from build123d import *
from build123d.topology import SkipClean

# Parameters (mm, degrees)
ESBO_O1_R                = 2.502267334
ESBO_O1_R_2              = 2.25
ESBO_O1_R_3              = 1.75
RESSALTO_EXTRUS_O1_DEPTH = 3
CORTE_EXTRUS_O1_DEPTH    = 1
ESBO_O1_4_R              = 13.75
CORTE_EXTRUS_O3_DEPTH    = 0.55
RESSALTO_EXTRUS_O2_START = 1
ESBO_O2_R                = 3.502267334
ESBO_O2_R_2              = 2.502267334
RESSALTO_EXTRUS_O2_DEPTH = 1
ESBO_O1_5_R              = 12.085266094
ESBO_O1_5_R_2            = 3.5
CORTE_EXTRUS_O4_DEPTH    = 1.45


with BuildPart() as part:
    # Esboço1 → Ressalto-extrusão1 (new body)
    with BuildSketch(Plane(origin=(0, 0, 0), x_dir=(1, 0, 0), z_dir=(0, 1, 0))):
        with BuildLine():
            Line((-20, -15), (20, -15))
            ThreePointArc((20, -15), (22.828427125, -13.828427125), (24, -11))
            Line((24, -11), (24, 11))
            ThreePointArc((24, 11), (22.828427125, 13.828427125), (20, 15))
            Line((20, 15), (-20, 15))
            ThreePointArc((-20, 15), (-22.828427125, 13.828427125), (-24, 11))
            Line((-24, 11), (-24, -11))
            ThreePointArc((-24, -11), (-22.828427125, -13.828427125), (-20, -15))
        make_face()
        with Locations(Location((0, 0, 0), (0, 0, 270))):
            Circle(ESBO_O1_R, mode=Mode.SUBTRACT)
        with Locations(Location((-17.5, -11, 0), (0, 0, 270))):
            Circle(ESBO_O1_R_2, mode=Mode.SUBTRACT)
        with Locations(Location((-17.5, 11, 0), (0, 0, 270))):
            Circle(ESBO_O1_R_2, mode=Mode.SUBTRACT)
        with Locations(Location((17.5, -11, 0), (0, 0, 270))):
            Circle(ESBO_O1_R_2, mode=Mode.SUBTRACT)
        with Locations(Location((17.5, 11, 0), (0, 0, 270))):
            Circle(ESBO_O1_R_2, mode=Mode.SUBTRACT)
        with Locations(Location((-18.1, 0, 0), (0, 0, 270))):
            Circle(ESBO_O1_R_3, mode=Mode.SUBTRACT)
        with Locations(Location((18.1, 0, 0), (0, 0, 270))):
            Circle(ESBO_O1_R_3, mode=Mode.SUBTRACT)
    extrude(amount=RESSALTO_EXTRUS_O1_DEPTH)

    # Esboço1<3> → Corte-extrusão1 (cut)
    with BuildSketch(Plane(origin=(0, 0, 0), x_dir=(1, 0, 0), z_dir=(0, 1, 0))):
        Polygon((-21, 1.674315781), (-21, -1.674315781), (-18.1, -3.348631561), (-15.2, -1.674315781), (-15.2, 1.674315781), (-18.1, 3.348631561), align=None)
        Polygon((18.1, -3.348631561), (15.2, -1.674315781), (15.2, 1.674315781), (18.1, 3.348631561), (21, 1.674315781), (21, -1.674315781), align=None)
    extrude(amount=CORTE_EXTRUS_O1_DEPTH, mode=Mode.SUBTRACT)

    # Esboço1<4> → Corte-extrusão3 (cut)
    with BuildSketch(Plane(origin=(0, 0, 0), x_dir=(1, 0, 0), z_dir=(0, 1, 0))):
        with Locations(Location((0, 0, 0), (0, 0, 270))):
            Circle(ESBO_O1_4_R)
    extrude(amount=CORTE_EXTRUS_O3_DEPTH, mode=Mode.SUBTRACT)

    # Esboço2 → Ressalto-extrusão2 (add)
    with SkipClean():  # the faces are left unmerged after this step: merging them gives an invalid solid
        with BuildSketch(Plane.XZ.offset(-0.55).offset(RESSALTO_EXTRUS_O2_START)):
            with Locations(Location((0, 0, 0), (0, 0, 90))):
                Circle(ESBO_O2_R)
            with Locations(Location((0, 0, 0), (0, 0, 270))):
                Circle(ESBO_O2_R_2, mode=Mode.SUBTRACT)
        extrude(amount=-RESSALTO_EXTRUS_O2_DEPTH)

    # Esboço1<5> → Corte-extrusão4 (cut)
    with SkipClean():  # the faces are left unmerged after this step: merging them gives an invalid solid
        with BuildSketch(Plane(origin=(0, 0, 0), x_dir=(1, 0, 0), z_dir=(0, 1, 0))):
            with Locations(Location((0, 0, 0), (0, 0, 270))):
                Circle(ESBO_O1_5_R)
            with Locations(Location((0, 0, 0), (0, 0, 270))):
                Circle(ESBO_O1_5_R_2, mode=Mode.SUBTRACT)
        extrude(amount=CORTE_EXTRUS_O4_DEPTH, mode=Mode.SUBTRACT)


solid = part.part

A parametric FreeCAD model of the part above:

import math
import FreeCAD as App
import Part
import Sketcher
from FreeCAD import Vector
Q = App.Units.Quantity

doc = App.newDocument("Part")
body = doc.addObject("PartDesign::Body", "Body")

# Sketch on XZ plane
sketch1 = body.newObject("Sketcher::SketchObject", "Sketch")
sketch1.AttachmentSupport = (doc.getObject("XZ_Plane"), [""])
sketch1.MapMode = "FlatFace"
sketch1.addGeometry([
    Part.LineSegment(Vector(-20, 15, 0), Vector(20, 15, 0)),  # 0
    Part.ArcOfCircle(Part.Circle(Vector(20, 11, 0), Vector(0, 0, 1), 4), math.radians(0), math.radians(90)),  # 1
    Part.LineSegment(Vector(24, 11, 0), Vector(24, -11, 0)),  # 2
    Part.ArcOfCircle(Part.Circle(Vector(20, -11, 0), Vector(0, 0, 1), 4), math.radians(-90), math.radians(0)),  # 3
    Part.LineSegment(Vector(20, -15, 0), Vector(-20, -15, 0)),  # 4
    Part.ArcOfCircle(Part.Circle(Vector(-20, -11, 0), Vector(0, 0, 1), 4), math.radians(180), math.radians(270)),  # 5
    Part.LineSegment(Vector(-24, -11, 0), Vector(-24, 11, 0)),  # 6
    Part.ArcOfCircle(Part.Circle(Vector(-20, 11, 0), Vector(0, 0, 1), 4), math.radians(90), math.radians(180)),  # 7
    Part.Circle(Vector(-17.5, 11, 0), Vector(0, 0, 1), 2.2),  # 8
    Part.Circle(Vector(17.5, 11, 0), Vector(0, 0, 1), 2.2),  # 9
    Part.Circle(Vector(-18.1, 0, 0), Vector(0, 0, 1), 1.8),  # 10
    Part.Circle(Vector(-17.5, -11, 0), Vector(0, 0, 1), 2.2),  # 11
    Part.Circle(Vector(0, 0, 0), Vector(0, 0, 1), 2.5),  # 12
    Part.Circle(Vector(18.1, 0, 0), Vector(0, 0, 1), 1.8),  # 13
    Part.Circle(Vector(17.5, -11, 0), Vector(0, 0, 1), 2.2),  # 14
], False)
sketch1.addConstraint([
    Sketcher.Constraint("Tangent", 0, 2, 1, 2),
    Sketcher.Constraint("Tangent", 1, 1, 2, 1),
    Sketcher.Constraint("Tangent", 2, 2, 3, 2),
    Sketcher.Constraint("Tangent", 3, 1, 4, 1),
    Sketcher.Constraint("Tangent", 4, 2, 5, 2),
    Sketcher.Constraint("Tangent", 5, 1, 6, 1),
    Sketcher.Constraint("Tangent", 6, 2, 7, 2),
    Sketcher.Constraint("Tangent", 7, 1, 0, 1),
    Sketcher.Constraint("Horizontal", 0),
    Sketcher.Constraint("Vertical", 2),
    Sketcher.Constraint("Horizontal", 4),
    Sketcher.Constraint("Vertical", 6),
    Sketcher.Constraint("Coincident", 12, 3, -1, 1),
    Sketcher.Constraint("Equal", 1, 3),
    Sketcher.Constraint("Equal", 3, 5),
    Sketcher.Constraint("Equal", 5, 7),
    Sketcher.Constraint("Equal", 8, 9),
    Sketcher.Constraint("Equal", 9, 11),
    Sketcher.Constraint("Equal", 10, 13),
    Sketcher.Constraint("Equal", 11, 14),
    Sketcher.Constraint("Symmetric", 1, 3, 5, 3, -1, 1),
    Sketcher.Constraint("Symmetric", 9, 3, 11, 3, -1, 1),
    Sketcher.Constraint("Symmetric", 10, 3, 13, 3, -1, 1),
    Sketcher.Constraint("Symmetric", 8, 3, 14, 3, -1, 1),
    Sketcher.Constraint("Symmetric", 8, 3, 9, 3, -2),
    Sketcher.Constraint("PointOnObject", 10, 3, -1),
    Sketcher.Constraint("Horizontal", 7, 3, 8, 3),
    Sketcher.Constraint("Radius", 1, Q("4 mm")),
    Sketcher.Constraint("Diameter", 8, Q("4.5 mm")),
    Sketcher.Constraint("Diameter", 10, Q("3.5 mm")),
    Sketcher.Constraint("DistanceX", 0, 1, 0, 2, Q("40 mm")),
    Sketcher.Constraint("DistanceY", 2, 2, 2, 1, Q("22 mm")),
    Sketcher.Constraint("DistanceX", 8, 3, 9, 3, Q("35 mm")),
    Sketcher.Constraint("DistanceX", 10, 3, -1, 1, Q("18.1 mm")),
    Sketcher.Constraint("Diameter", 12, Q("5.004535 mm")),
])
pad1 = body.newObject("PartDesign::Pad", "Pad")
pad1.Profile = sketch1
pad1.Length = 3
pad1.Reversed = True

# Sketch on XZ plane
sketch2 = body.newObject("Sketcher::SketchObject", "Sketch001")
sketch2.AttachmentSupport = (doc.getObject("XZ_Plane"), [""])
sketch2.MapMode = "FlatFace"
sketch2.addGeometry([
    Part.LineSegment(Vector(-21, -1.7, 0), Vector(-21, 1.7, 0)),  # 0
    Part.LineSegment(Vector(-21, 1.7, 0), Vector(-18.1, 3.3, 0)),  # 1
    Part.LineSegment(Vector(-18.1, 3.3, 0), Vector(-15.2, 1.7, 0)),  # 2
    Part.LineSegment(Vector(-15.2, 1.7, 0), Vector(-15.2, -1.7, 0)),  # 3
    Part.LineSegment(Vector(-15.2, -1.7, 0), Vector(-18.1, -3.3, 0)),  # 4
    Part.LineSegment(Vector(-18.1, -3.3, 0), Vector(-21, -1.7, 0)),  # 5
    Part.LineSegment(Vector(15.2, 1.7, 0), Vector(18.1, 3.3, 0)),  # 6
    Part.LineSegment(Vector(18.1, 3.3, 0), Vector(21, 1.7, 0)),  # 7
    Part.LineSegment(Vector(21, 1.7, 0), Vector(21, -1.7, 0)),  # 8
    Part.LineSegment(Vector(21, -1.7, 0), Vector(18.1, -3.3, 0)),  # 9
    Part.LineSegment(Vector(18.1, -3.3, 0), Vector(15.2, -1.7, 0)),  # 10
    Part.LineSegment(Vector(15.2, -1.7, 0), Vector(15.2, 1.7, 0)),  # 11
], False)
sketch2.addConstraint([
    Sketcher.Constraint("Coincident", 0, 2, 1, 1),
    Sketcher.Constraint("Coincident", 1, 2, 2, 1),
    Sketcher.Constraint("Coincident", 2, 2, 3, 1),
    Sketcher.Constraint("Coincident", 3, 2, 4, 1),
    Sketcher.Constraint("Coincident", 4, 2, 5, 1),
    Sketcher.Constraint("Coincident", 5, 2, 0, 1),
    Sketcher.Constraint("Coincident", 6, 2, 7, 1),
    Sketcher.Constraint("Coincident", 7, 2, 8, 1),
    Sketcher.Constraint("Coincident", 8, 2, 9, 1),
    Sketcher.Constraint("Coincident", 9, 2, 10, 1),
    Sketcher.Constraint("Coincident", 10, 2, 11, 1),
    Sketcher.Constraint("Coincident", 11, 2, 6, 1),
    Sketcher.Constraint("Vertical", 0),
    Sketcher.Constraint("Vertical", 3),
    Sketcher.Constraint("Vertical", 8),
    Sketcher.Constraint("Vertical", 11),
    Sketcher.Constraint("Symmetric", 4, 2, 6, 2, -1, 1),
    Sketcher.Constraint("Symmetric", 5, 2, 7, 2, -1, 1),
    Sketcher.Constraint("Symmetric", 1, 2, 9, 2, -1, 1),
    Sketcher.Constraint("Symmetric", 2, 2, 10, 2, -1, 1),
    Sketcher.Constraint("Symmetric", 1, 2, 6, 2, -2),
    Sketcher.Constraint("Parallel", 1, 4),
    Sketcher.Constraint("Parallel", 2, 5),
    Sketcher.Constraint("Parallel", 4, 6),
    Sketcher.Constraint("Parallel", 6, 9),
    Sketcher.Constraint("Horizontal", 0, 2, 2, 2),
    Sketcher.Constraint("Horizontal", 3, 2, 5, 2),
    Sketcher.Constraint("Angle", 1, Q("30 deg")),
    Sketcher.Constraint("DistanceX", 0, 2, -1, 1, Q("21 mm")),
    Sketcher.Constraint("DistanceX", 1, 2, -1, 1, Q("18.1 mm")),
    Sketcher.Constraint("DistanceY", 0, 1, 0, 2, Q("3.348632 mm")),
])
pocket1 = body.newObject("PartDesign::Pocket", "Pocket")
pocket1.Profile = sketch2
pocket1.Length = 1

# Sketch on XZ plane
sketch3 = body.newObject("Sketcher::SketchObject", "Sketch002")
sketch3.AttachmentSupport = (doc.getObject("XZ_Plane"), [""])
sketch3.MapMode = "FlatFace"
sketch3.addGeometry(Part.Circle(Vector(0, 0, 0), Vector(0, 0, 1), 14), False)
sketch3.addConstraint([
    Sketcher.Constraint("Coincident", 0, 3, -1, 1),
    Sketcher.Constraint("Diameter", 0, Q("27.5 mm")),
])
pocket2 = body.newObject("PartDesign::Pocket", "Pocket001")
pocket2.Profile = sketch3
pocket2.Length = 0.55

# Sketch on XZ plane
sketch4 = body.newObject("Sketcher::SketchObject", "Sketch003")
sketch4.AttachmentSupport = (doc.getObject("XZ_Plane"), [""])
sketch4.MapMode = "FlatFace"
sketch4.AttachmentOffset = App.Placement(Vector(0, 0, 0.45), App.Rotation())
sketch4.addGeometry([
    Part.Circle(Vector(0, 0, 0), Vector(0, 0, 1), 3.5),
    Part.Circle(Vector(0, 0, 0), Vector(0, 0, 1), 2.5),
], False)
sketch4.addConstraint([
    Sketcher.Constraint("Coincident", 0, 3, -1, 1),
    Sketcher.Constraint("Coincident", 1, 3, -1, 1),
    Sketcher.Constraint("Diameter", 0, Q("7.004535 mm")),
    Sketcher.Constraint("Diameter", 1, Q("5.004535 mm")),
])
pad2 = body.newObject("PartDesign::Pad", "Pad001")
pad2.Profile = sketch4
pad2.Length = 1
pad2.Reversed = True

# Sketch on XZ plane
sketch5 = body.newObject("Sketcher::SketchObject", "Sketch004")
sketch5.AttachmentSupport = (doc.getObject("XZ_Plane"), [""])
sketch5.MapMode = "FlatFace"
sketch5.addGeometry([
    Part.Circle(Vector(0, 0, 0), Vector(0, 0, 1), 12.1),
    Part.Circle(Vector(0, 0, 0), Vector(0, 0, 1), 3.5),
], False)
sketch5.addConstraint([
    Sketcher.Constraint("Coincident", 0, 3, -1, 1),
    Sketcher.Constraint("Coincident", 1, 3, -1, 1),
    Sketcher.Constraint("Diameter", 1, Q("7 mm")),
    Sketcher.Constraint("Diameter", 0, Q("24.170532 mm")),
])
pocket3 = body.newObject("PartDesign::Pocket", "Pocket002")
pocket3.Profile = sketch5
pocket3.Length = 1.45

doc.recompute()
